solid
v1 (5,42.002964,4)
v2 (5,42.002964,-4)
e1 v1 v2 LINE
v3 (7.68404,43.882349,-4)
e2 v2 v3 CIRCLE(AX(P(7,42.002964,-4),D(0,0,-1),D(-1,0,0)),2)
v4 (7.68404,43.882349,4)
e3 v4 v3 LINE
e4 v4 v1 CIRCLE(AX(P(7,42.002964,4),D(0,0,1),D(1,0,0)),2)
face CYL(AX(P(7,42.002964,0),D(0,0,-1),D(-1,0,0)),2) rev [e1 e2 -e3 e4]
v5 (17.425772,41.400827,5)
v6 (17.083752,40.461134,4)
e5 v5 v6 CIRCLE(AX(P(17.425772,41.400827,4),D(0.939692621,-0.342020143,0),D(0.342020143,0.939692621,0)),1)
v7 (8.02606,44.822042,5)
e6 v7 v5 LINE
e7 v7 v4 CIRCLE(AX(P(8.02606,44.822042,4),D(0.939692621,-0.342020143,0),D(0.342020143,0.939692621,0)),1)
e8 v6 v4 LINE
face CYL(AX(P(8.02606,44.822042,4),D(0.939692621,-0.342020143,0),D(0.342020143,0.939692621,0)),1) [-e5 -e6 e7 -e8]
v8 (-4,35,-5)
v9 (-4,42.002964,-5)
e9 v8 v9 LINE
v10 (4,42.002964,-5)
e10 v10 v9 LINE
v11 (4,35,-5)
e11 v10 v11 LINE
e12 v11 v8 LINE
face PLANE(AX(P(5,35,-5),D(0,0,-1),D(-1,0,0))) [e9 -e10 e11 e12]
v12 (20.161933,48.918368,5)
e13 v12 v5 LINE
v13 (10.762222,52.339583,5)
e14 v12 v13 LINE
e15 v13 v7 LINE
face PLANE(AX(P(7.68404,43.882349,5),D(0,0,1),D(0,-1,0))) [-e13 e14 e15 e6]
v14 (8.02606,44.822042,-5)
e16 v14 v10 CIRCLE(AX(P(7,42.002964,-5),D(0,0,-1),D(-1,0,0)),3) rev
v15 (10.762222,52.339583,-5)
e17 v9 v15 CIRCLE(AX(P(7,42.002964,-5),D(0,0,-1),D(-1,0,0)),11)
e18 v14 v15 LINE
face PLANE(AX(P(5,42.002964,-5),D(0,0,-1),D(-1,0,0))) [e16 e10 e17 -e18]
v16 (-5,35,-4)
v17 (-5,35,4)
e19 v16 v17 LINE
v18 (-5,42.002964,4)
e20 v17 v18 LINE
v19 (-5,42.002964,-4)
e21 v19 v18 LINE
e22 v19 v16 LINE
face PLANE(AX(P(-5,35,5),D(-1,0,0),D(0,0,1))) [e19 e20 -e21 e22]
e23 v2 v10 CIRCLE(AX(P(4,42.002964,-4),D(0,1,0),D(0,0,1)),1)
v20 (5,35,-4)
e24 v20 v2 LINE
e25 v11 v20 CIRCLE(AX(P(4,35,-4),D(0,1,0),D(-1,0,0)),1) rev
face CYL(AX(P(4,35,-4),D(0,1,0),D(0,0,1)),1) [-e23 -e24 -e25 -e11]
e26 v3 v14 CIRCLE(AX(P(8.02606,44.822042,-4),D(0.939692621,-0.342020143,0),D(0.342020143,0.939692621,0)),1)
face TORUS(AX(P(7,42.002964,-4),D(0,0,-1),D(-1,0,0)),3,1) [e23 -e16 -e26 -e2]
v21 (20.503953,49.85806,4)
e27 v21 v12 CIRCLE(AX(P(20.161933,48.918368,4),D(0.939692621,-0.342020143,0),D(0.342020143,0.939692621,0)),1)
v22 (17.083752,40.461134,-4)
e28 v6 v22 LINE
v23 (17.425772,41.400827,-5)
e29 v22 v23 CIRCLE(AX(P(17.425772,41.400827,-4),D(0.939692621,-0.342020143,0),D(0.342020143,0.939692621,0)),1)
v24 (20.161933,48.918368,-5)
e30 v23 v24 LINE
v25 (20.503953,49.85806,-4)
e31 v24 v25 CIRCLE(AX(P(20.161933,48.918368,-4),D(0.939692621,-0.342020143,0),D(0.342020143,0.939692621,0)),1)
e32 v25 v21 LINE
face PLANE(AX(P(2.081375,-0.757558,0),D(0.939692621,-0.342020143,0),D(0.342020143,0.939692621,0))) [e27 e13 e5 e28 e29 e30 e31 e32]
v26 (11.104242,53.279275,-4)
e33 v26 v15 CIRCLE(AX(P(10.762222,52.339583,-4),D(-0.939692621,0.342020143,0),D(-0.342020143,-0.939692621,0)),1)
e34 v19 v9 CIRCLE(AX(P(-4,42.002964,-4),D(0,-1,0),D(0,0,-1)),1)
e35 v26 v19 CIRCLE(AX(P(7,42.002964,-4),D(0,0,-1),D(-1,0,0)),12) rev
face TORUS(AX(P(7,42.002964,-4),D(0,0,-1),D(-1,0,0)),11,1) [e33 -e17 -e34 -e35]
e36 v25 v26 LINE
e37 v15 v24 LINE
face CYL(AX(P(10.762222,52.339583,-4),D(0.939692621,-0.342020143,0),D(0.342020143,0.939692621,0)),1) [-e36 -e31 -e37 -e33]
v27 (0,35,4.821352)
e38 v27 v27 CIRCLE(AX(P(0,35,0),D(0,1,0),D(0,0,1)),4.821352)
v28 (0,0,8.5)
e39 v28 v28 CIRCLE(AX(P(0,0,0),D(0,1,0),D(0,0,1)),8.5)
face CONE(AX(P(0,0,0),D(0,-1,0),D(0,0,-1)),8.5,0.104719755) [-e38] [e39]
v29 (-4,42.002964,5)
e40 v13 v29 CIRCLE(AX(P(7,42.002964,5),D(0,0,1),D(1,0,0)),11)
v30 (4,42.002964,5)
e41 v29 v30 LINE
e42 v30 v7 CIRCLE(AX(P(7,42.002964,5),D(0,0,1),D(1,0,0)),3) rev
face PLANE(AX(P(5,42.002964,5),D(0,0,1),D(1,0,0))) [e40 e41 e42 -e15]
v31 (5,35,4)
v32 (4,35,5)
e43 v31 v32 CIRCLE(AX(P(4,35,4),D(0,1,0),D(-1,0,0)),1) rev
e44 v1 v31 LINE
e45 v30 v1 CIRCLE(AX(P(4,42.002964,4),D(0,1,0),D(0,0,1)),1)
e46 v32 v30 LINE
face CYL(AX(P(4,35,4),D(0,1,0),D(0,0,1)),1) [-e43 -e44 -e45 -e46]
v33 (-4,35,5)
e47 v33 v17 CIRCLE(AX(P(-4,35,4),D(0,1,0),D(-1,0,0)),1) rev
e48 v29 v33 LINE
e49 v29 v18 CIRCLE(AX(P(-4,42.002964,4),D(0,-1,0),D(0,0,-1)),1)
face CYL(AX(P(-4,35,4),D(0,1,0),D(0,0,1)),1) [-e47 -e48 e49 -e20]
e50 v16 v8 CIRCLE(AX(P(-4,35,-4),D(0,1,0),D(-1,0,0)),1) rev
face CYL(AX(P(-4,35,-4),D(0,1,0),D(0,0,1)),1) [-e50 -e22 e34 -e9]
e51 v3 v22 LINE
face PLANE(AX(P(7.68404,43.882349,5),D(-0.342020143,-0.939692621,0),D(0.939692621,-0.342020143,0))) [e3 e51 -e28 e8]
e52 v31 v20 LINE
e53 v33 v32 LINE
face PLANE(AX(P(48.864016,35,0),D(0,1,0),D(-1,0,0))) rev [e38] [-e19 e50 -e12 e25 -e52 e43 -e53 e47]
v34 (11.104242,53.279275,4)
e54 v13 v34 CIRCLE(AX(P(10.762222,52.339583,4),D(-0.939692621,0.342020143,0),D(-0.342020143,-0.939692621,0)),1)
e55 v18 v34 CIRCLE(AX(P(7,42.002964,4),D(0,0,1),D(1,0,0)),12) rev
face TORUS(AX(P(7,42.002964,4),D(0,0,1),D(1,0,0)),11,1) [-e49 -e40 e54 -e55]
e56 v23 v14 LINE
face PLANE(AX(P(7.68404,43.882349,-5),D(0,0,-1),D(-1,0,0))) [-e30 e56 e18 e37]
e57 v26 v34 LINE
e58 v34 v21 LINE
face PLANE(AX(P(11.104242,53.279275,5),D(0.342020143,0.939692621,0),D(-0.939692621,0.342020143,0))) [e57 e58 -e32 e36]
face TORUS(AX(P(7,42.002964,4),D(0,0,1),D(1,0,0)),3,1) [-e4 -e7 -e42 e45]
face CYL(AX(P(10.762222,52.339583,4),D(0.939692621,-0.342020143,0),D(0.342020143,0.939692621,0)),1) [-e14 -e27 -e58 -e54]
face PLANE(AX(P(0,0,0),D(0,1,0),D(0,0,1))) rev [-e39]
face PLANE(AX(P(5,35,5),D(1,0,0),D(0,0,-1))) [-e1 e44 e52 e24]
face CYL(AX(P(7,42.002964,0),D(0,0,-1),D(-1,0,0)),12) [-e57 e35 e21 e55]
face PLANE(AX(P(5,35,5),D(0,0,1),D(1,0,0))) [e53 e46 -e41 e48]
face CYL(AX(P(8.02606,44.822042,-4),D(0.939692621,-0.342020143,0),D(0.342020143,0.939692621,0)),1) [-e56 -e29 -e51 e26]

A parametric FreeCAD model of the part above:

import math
import FreeCAD as App
import Part
import Sketcher
Q = App.Units.Quantity


def edges_at(feature, points):
    """Names of the edges that pass closest to the given points."""
    edges = feature.Shape.Edges
    near = lambda p: min(range(len(edges)), key=lambda i: edges[i].distToShape(Part.Vertex(*p))[0])
    return sorted({f"Edge{near(p) + 1}" for p in points})


def add_polygon(sketch, points):
    """Adds a closed chain of lines whose ends are joined by coincident constraints."""
    first, n = sketch.GeometryCount, len(points)
    for a, b in zip(points, points[1:] + points[:1]):
        sketch.addGeometry(Part.LineSegment(App.Vector(*a, 0), App.Vector(*b, 0)), False)
    for i in range(n):
        sketch.addConstraint(Sketcher.Constraint("Coincident", first + i, 2, first + (i + 1) % n, 1))

doc = App.newDocument("Part")
body = doc.addObject("PartDesign::Body", "Body")

# Sketch on YZ plane
sketch1 = doc.addObject("Sketcher::SketchObject", "Sketch")
body.addObject(sketch1)
sketch1.AttachmentSupport = (doc.YZ_Plane, [""])
sketch1.MapMode = "FlatFace"
add_polygon(sketch1, [(0, 0), (0, -8.5), (35, -4.8), (35, 0)])  # lines 0-3
sketch1.addConstraint([
    Sketcher.Constraint("Vertical", 0),
    Sketcher.Constraint("Vertical", 2),
    Sketcher.Constraint("Horizontal", 3),
    Sketcher.Constraint("Coincident", 3, 2, -1, 1),
    Sketcher.Constraint("DistanceX", 3, 2, 3, 1, Q("35 mm")),
    Sketcher.Constraint("Angle", 1, Q("6 deg")),
    Sketcher.Constraint("DistanceY", 0, 2, 0, 1, Q("8.5 mm")),
])
revolution = doc.addObject("PartDesign::Revolution", "Revolution")
body.addObject(revolution)
revolution.Profile = sketch1
revolution.ReferenceAxis = (sketch1, ["H_Axis"])
revolution.Angle = 360

# Sketch on an angled plane
sketch2 = doc.addObject("Sketcher::SketchObject", "Sketch001")
body.addObject(sketch2)
sketch2.Placement = App.Placement(App.Vector(2.081375, -0.757558, 0), App.Rotation(App.Vector(0.342020143, 0.939692621, 0), App.Vector(0, 0, 1), App.Vector(0.939692621, -0.342020143, 0), "ZXY"))
add_polygon(sketch2, [(44, 5), (44, -5), (54, -5), (54, 5)])  # lines 0-3
sketch2.addConstraint([
    Sketcher.Constraint("Vertical", 0),
    Sketcher.Constraint("Horizontal", 1),
    Sketcher.Constraint("Vertical", 2),
    Sketcher.Constraint("Horizontal", 3),
    Sketcher.Constraint("Equal", 3, 0),
    Sketcher.Constraint("DistanceX", 1, 1, 1, 2, Q("10 mm")),
    Sketcher.Constraint("DistanceY", 0, 2, -1, 1, Q("5 mm")),
    Sketcher.Constraint("DistanceX", -1, 1, 0, 2, Q("43.864016 mm")),
])

# Sketch on XY plane
sketch3 = doc.addObject("Sketcher::SketchObject", "Sketch002")
body.addObject(sketch3)
sketch3.AttachmentSupport = (doc.XY_Plane, [""])
sketch3.MapMode = "FlatFace"
sketch3.addGeometry([
    Part.LineSegment(App.Vector(0, 35, 0), App.Vector(0, 42, 0)),
    Part.ArcOfCircle(Part.Circle(App.Vector(7, 42, 0), App.Vector(0, 0, 1), 7), math.radians(70), math.radians(180)),
    Part.LineSegment(App.Vector(9, 49, 0), App.Vector(19, 45, 0)),
], False)
sketch3.addConstraint([
    Sketcher.Constraint("Tangent", 0, 2, 1, 2),
    Sketcher.Constraint("Tangent", 1, 1, 2, 1),
    Sketcher.Constraint("Vertical", 0),
    Sketcher.Constraint("PointOnObject", 0, 1, -2),
    Sketcher.Constraint("Radius", 1, Q("7 mm")),
    Sketcher.Constraint("Angle", 2, Q("-20 deg")),
    Sketcher.Constraint("DistanceY", -1, 1, 0, 1, Q("35 mm")),
    Sketcher.Constraint("DistanceY", 0, 1, 0, 2, Q("7.002964 mm")),
    Sketcher.Constraint("DistanceX", 1, 1, 2, 2, Q("9.399711 mm")),
])
doc.recompute()

additivepipe = doc.addObject("PartDesign::AdditivePipe", "AdditivePipe")
body.addObject(additivepipe)
additivepipe.Profile = sketch2
additivepipe.Spine = (sketch3, ["Edge1", "Edge2", "Edge3"])
doc.recompute()

fillet = doc.addObject("PartDesign::Fillet", "Fillet")
body.addObject(fillet)
fillet.Base = (additivepipe, edges_at(additivepipe, [
    (-5, 38.501, -5),
    (-5, 38.501, 5),
    (0.117, 51.833, -5),
    (0.117, 51.833, 5),
    (15.804, 51.569, -5),
    (15.804, 51.569, 5),
]))
fillet.Radius = 1
doc.recompute()

fillet2 = doc.addObject("PartDesign::Fillet", "Fillet001")
body.addObject(fillet2)
fillet2.Base = (fillet, edges_at(fillet, [
    (5, 38.501, -5),
    (5, 38.501, 5),
    (5.853, 43.641, -5),
    (5.853, 43.641, 5),
    (12.384, 42.172, -5),
    (12.384, 42.172, 5),
]))
fillet2.Radius = 1

doc.recompute()
